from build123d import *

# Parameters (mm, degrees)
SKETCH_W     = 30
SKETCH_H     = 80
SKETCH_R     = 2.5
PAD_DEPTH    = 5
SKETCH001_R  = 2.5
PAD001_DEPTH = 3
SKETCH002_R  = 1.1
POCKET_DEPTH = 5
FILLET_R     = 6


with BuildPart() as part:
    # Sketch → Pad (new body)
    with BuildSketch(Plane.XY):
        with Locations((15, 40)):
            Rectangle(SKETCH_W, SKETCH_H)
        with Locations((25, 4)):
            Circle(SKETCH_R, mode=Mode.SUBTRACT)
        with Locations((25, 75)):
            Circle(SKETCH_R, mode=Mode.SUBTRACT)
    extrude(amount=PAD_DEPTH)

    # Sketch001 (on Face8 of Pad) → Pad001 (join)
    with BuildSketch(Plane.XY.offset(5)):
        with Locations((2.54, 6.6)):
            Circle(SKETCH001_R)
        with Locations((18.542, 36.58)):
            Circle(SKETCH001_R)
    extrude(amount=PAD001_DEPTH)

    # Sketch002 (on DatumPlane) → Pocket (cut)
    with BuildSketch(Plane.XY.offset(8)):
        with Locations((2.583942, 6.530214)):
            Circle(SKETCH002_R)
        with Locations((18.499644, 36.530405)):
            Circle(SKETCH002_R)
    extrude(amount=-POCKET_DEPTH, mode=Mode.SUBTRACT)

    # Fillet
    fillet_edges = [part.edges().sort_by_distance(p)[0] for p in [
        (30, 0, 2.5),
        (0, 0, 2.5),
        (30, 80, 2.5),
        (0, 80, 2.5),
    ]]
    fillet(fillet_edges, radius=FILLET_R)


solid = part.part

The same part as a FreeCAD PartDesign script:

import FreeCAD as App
import Part
import Sketcher

V = App.Vector


def edges_at(feature, points):
    """Names of the edges that pass closest to the given points."""
    edges = feature.Shape.Edges
    near = lambda p: min(range(len(edges)), key=lambda i: edges[i].distToShape(Part.Vertex(*p))[0])
    return sorted({f"Edge{near(p) + 1}" for p in points})


def add_polygon(sketch, points):
    """Adds a closed chain of lines whose ends are joined by coincident constraints."""
    first, n = sketch.GeometryCount, len(points)
    for a, b in zip(points, points[1:] + points[:1]):
        sketch.addGeometry(Part.LineSegment(App.Vector(*a, 0), App.Vector(*b, 0)), False)
    for i in range(n):
        sketch.addConstraint(Sketcher.Constraint("Coincident", first + i, 2, first + (i + 1) % n, 1))

doc = App.newDocument("Part")
body = doc.addObject("PartDesign::Body", "Body")

# Sketch on XY plane
sketch1 = body.newObject("Sketcher::SketchObject", "Sketch")
sketch1.AttachmentSupport = (doc.getObject("XY_Plane"), [""])
sketch1.MapMode = "FlatFace"
add_polygon(sketch1, [(0, 80), (0, 0), (30, 0), (30, 80)])  # lines 0-3
sketch1.addGeometry(Part.Circle(V(25, 4, 0), V(0, 0, 1), 2.5), False)  # 4
sketch1.addGeometry(Part.Circle(V(25, 75, 0), V(0, 0, 1), 2.5), False)  # 5
sketch1.addConstraint([
    Sketcher.Constraint("Vertical", 0),
    Sketcher.Constraint("Horizontal", 1),
    Sketcher.Constraint("Vertical", 2),
    Sketcher.Constraint("Horizontal", 3),
    Sketcher.Constraint("Coincident", 0, 2, -1, 1),
    Sketcher.Constraint("Equal", 4, 5),
    Sketcher.Constraint("Vertical", 4, 3, 5, 3),
    Sketcher.Constraint("Diameter", 4, 5.0),
    Sketcher.Constraint("DistanceX", 1, 1, 1, 2, 30.0),
    Sketcher.Constraint("DistanceY", 0, 2, 0, 1, 80.0),
    Sketcher.Constraint("DistanceX", -1, 1, 4, 3, 25.0),
    Sketcher.Constraint("DistanceY", -1, 1, 4, 3, 4.0),
    Sketcher.Constraint("DistanceY", -1, 1, 5, 3, 75.0),
])
pad1 = body.newObject("PartDesign::Pad", "Pad")
pad1.Profile = sketch1
pad1.Length = 5

# Sketch on XY plane
sketch2 = body.newObject("Sketcher::SketchObject", "Sketch001")
sketch2.AttachmentSupport = (doc.getObject("XY_Plane"), [""])
sketch2.MapMode = "FlatFace"
sketch2.AttachmentOffset = App.Placement(V(0, 0, 5), App.Rotation())
sketch2.addGeometry([
    Part.Circle(V(2.5, 6.6, 0), V(0, 0, 1), 2.5),
    Part.Circle(V(18.5, 36.6, 0), V(0, 0, 1), 2.5),
], False)
sketch2.addConstraint([
    Sketcher.Constraint("Equal", 0, 1),
    Sketcher.Constraint("Diameter", 0, 5.0),
    Sketcher.Constraint("DistanceY", -1, 1, 0, 3, 6.6),
    Sketcher.Constraint("DistanceX", -1, 1, 0, 3, 2.54),
    Sketcher.Constraint("DistanceY", -1, 1, 1, 3, 36.58),
    Sketcher.Constraint("DistanceX", -1, 1, 1, 3, 18.542),
])
pad2 = body.newObject("PartDesign::Pad", "Pad001")
pad2.Profile = sketch2
pad2.Length = 3

# Sketch on XY plane
sketch3 = body.newObject("Sketcher::SketchObject", "Sketch002")
sketch3.AttachmentSupport = (doc.getObject("XY_Plane"), [""])
sketch3.MapMode = "FlatFace"
sketch3.AttachmentOffset = App.Placement(V(0, 0, 8), App.Rotation())
sketch3.addGeometry([
    Part.Circle(V(2.6, 6.5, 0), V(0, 0, 1), 1.1),
    Part.Circle(V(18.5, 36.5, 0), V(0, 0, 1), 1.1),
], False)
sketch3.addConstraint([
    Sketcher.Constraint("Equal", 0, 1),
    Sketcher.Constraint("Diameter", 0, 2.2),
    Sketcher.Constraint("DistanceX", -1, 1, 0, 3, 2.583942),
    Sketcher.Constraint("DistanceY", 0, 3, 1, 3, 30.000191),
    Sketcher.Constraint("DistanceY", -1, 1, 0, 3, 6.530214),
    Sketcher.Constraint("DistanceX", -1, 1, 1, 3, 18.499644),
])
pocket1 = body.newObject("PartDesign::Pocket", "Pocket")
pocket1.Profile = sketch3
pocket1.Length = 5
doc.recompute()

fillet = body.newObject("PartDesign::Fillet", "Fillet")
fillet.Base = (pocket1, edges_at(pocket1, [
    (30, 0, 2.5),
    (0, 0, 2.5),
    (30, 80, 2.5),
    (0, 80, 2.5),
]))
fillet.Radius = 6

doc.recompute()
